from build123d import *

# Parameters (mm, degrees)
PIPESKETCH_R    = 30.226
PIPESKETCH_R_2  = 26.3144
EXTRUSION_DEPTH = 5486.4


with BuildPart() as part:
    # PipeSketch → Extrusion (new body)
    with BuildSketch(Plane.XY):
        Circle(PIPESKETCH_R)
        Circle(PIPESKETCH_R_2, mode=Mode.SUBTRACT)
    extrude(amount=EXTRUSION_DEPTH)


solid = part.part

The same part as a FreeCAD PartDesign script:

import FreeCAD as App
import Part
import Sketcher
Q = App.Units.Quantity

doc = App.newDocument("Part")
body = doc.addObject("PartDesign::Body", "Body")

sketch1 = doc.addObject("Sketcher::SketchObject", "Sketch")
body.addObject(sketch1)
sketch1.AttachmentSupport = (doc.XY_Plane, [""])
sketch1.MapMode = "FlatFace"
sketch1.addGeometry(Part.Circle(App.Vector(0, 0, 0), App.Vector(0, 0, 1), 30), False)
sketch1.addGeometry(Part.Circle(App.Vector(0, 0, 0), App.Vector(0, 0, 1), 26), False)
sketch1.addConstraint(Sketcher.Constraint("Coincident", 0, 3, -1, 1))
sketch1.addConstraint(Sketcher.Constraint("Coincident", 1, 3, -1, 1))
sketch1.addConstraint(Sketcher.Constraint("Diameter", 0, Q("2.38 in")))
sketch1.addConstraint(Sketcher.Constraint("Diameter", 1, Q("2.072 in")))
pad1 = doc.addObject("PartDesign::Pad", "Pad")
body.addObject(pad1)
pad1.Profile = sketch1
pad1.Length = Q("216 in")

doc.recompute()
